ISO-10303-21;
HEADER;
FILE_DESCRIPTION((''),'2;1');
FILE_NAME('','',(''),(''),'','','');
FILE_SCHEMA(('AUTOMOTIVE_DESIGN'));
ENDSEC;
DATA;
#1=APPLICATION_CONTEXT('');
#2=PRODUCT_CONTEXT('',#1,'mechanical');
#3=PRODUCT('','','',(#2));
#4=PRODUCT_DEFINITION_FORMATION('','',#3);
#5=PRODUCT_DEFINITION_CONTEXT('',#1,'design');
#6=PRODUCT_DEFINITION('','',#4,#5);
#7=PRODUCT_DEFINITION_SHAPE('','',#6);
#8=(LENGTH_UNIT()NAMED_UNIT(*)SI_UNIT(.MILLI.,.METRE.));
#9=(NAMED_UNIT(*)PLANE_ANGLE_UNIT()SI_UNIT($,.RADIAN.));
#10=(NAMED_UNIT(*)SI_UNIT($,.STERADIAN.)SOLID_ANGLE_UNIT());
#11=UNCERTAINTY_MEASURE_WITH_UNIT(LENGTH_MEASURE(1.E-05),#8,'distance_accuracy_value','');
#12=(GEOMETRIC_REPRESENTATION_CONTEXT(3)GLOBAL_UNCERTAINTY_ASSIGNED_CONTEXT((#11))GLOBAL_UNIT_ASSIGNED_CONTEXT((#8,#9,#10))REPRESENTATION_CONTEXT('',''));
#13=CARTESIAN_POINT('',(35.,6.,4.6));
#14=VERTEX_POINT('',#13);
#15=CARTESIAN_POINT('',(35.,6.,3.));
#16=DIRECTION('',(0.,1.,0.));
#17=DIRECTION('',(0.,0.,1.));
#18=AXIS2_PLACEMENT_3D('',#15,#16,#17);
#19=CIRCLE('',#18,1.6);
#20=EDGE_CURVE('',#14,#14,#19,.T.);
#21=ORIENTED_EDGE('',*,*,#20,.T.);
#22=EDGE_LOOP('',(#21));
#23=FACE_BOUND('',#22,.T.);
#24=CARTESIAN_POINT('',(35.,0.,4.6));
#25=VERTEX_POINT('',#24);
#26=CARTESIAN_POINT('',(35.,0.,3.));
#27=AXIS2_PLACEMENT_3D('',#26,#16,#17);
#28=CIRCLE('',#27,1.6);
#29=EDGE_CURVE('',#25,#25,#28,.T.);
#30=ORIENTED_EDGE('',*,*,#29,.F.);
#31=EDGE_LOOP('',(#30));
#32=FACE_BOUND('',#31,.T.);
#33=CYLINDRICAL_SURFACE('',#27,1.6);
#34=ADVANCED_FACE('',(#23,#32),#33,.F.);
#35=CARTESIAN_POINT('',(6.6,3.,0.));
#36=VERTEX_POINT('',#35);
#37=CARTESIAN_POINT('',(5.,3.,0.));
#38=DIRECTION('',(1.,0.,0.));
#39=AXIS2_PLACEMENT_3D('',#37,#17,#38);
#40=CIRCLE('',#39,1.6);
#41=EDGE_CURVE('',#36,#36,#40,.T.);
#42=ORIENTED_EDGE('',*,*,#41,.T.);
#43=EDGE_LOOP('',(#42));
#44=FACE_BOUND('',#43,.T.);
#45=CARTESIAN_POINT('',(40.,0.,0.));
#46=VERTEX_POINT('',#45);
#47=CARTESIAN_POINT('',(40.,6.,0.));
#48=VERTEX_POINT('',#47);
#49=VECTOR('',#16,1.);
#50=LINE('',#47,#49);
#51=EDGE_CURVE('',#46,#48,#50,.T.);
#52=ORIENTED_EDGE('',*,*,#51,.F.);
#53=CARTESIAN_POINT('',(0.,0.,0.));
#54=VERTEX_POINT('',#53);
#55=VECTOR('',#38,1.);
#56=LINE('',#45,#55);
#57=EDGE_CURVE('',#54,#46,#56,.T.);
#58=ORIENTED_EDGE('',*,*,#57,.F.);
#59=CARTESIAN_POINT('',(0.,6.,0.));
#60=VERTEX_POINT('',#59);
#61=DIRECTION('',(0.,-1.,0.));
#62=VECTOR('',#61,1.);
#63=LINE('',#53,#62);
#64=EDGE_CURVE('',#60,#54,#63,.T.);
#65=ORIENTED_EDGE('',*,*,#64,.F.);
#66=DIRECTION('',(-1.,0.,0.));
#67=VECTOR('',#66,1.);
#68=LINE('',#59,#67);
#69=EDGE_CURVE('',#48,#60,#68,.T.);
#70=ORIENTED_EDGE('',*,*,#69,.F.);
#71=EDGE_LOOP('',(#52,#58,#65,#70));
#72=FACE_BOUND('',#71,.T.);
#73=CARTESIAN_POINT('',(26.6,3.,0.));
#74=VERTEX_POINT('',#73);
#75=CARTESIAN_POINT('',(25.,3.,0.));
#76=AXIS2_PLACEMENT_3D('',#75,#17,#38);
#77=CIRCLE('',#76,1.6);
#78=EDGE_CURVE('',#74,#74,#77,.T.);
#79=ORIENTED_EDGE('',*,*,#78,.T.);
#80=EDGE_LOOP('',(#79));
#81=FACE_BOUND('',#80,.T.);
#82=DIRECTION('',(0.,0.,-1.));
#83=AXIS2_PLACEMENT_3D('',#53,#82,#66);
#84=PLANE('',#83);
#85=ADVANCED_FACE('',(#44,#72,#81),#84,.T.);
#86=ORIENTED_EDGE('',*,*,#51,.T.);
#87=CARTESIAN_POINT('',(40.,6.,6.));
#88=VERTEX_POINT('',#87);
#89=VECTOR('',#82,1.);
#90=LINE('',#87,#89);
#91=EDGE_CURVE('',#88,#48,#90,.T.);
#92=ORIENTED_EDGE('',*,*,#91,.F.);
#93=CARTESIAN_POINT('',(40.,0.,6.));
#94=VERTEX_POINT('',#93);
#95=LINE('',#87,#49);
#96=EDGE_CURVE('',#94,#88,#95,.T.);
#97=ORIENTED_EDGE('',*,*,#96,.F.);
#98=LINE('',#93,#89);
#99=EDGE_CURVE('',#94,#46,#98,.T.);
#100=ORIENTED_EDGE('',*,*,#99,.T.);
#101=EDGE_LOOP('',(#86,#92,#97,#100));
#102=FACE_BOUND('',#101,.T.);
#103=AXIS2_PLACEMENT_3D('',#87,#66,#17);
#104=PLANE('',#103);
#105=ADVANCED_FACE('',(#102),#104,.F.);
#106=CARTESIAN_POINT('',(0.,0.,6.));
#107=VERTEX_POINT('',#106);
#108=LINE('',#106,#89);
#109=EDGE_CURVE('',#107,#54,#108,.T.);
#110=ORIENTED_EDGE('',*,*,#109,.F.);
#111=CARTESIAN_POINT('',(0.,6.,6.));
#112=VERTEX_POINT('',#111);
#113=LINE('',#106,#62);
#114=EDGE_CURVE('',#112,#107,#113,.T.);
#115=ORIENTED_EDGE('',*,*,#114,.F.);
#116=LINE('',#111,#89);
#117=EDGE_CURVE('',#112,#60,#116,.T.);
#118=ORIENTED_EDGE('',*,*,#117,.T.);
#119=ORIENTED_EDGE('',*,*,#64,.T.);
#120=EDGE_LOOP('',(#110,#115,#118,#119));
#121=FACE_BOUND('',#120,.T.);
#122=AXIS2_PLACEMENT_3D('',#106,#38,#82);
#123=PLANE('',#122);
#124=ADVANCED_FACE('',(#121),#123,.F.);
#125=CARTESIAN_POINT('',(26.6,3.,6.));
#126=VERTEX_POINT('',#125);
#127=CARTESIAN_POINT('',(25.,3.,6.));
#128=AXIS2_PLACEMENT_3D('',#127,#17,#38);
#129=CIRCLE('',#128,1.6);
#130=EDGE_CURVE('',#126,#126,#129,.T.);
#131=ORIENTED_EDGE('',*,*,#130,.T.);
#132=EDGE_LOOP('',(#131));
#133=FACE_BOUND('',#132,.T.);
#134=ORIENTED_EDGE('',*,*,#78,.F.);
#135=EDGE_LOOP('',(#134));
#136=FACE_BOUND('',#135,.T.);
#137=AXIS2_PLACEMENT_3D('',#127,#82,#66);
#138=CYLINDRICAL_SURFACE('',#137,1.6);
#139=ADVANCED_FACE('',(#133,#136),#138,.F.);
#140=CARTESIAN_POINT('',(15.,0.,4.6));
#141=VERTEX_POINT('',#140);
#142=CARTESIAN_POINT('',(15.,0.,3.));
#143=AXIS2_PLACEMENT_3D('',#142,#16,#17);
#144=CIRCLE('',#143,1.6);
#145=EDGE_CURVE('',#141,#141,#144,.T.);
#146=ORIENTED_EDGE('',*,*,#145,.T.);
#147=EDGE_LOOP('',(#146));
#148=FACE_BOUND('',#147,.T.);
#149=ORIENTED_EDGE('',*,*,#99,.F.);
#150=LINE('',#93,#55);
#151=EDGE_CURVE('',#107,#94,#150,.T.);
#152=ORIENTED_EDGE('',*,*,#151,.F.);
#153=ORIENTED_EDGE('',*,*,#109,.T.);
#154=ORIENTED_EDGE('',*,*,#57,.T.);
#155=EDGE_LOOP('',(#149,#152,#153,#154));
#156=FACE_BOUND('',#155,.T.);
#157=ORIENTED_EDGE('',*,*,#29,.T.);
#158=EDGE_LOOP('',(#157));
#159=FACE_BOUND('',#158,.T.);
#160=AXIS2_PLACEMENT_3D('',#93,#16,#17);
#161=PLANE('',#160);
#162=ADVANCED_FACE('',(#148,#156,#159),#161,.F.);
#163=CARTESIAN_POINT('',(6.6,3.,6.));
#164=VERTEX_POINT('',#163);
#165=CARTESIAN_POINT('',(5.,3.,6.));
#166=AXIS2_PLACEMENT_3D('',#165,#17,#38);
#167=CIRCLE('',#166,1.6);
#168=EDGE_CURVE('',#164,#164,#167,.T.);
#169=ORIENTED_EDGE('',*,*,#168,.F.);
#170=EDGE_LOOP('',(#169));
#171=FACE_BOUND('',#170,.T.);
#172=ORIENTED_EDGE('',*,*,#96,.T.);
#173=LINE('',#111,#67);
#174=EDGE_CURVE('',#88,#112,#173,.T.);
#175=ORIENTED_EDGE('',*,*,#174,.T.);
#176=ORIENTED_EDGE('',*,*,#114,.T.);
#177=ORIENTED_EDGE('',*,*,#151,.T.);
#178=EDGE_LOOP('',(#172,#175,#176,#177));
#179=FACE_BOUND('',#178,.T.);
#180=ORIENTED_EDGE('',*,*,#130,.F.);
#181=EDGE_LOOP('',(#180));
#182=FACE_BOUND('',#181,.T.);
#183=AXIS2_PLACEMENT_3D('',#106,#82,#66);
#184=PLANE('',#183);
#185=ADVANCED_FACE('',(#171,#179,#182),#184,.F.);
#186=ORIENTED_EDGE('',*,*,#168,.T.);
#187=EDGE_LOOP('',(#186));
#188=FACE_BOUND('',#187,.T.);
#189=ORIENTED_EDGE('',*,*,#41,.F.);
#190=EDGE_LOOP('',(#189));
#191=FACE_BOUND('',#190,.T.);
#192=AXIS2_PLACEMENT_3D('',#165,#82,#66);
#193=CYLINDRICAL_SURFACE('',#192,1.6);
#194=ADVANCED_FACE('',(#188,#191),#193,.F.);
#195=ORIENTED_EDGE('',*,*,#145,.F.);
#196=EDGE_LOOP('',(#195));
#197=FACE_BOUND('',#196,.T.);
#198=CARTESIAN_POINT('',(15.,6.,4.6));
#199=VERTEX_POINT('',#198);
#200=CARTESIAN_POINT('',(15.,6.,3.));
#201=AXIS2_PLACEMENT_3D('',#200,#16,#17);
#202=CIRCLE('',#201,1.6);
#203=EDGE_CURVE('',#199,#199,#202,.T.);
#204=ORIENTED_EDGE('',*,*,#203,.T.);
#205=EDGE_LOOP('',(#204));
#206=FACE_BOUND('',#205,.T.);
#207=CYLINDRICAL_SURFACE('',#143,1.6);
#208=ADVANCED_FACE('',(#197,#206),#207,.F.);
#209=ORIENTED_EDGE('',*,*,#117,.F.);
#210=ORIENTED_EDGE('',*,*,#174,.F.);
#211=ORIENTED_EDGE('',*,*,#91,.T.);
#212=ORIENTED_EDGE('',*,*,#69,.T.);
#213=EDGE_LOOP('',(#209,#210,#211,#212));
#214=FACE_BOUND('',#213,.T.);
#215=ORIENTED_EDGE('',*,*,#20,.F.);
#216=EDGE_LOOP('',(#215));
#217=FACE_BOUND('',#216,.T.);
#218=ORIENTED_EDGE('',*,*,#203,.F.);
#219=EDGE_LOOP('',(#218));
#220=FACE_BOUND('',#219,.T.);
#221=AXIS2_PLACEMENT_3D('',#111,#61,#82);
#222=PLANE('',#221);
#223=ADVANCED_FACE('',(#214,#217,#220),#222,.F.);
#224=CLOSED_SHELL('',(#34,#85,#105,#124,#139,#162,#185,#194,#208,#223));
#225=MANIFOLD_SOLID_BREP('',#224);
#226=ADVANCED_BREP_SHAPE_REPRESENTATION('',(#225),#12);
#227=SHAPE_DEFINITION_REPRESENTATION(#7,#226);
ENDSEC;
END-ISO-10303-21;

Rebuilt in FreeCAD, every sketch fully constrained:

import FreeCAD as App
import Part
import Sketcher
from FreeCAD import Vector


def add_polygon(sketch, points):
    """Adds a closed chain of lines whose ends are joined by coincident constraints."""
    first, n = sketch.GeometryCount, len(points)
    for a, b in zip(points, points[1:] + points[:1]):
        sketch.addGeometry(Part.LineSegment(App.Vector(*a, 0), App.Vector(*b, 0)), False)
    for i in range(n):
        sketch.addConstraint(Sketcher.Constraint("Coincident", first + i, 2, first + (i + 1) % n, 1))

doc = App.newDocument("Part")
body = doc.addObject("PartDesign::Body", "Body")

sketch1 = doc.addObject("Sketcher::SketchObject", "Sketch")
body.addObject(sketch1)
sketch1.AttachmentSupport = (doc.XY_Plane, [""])
sketch1.MapMode = "FlatFace"
add_polygon(sketch1, [(0, 6), (0, 0), (40, 0), (40, 6)])
sketch1.addGeometry(Part.Circle(Vector(5, 3, 0), Vector(0, 0, 1), 1.6), False)
sketch1.addGeometry(Part.Circle(Vector(25, 3, 0), Vector(0, 0, 1), 1.6), False)
sketch1.addConstraint([
    Sketcher.Constraint("Vertical", 0),
    Sketcher.Constraint("Horizontal", 1),
    Sketcher.Constraint("Vertical", 2),
    Sketcher.Constraint("Horizontal", 3),
    Sketcher.Constraint("Coincident", 0, 2, -1, 1),
    Sketcher.Constraint("Equal", 4, 5),
    Sketcher.Constraint("Horizontal", 4, 3, 5, 3),
    Sketcher.Constraint("Diameter", 4, 3.2),
    Sketcher.Constraint("DistanceX", 1, 1, 1, 2, 40.0),
    Sketcher.Constraint("DistanceY", 0, 2, 0, 1, 6.0),
    Sketcher.Constraint("DistanceX", -1, 1, 4, 3, 5.0),
    Sketcher.Constraint("DistanceY", -1, 1, 4, 3, 3.0),
    Sketcher.Constraint("DistanceX", -1, 1, 5, 3, 25.0),
])
pad1 = doc.addObject("PartDesign::Pad", "Pad")
body.addObject(pad1)
pad1.Profile = sketch1
pad1.Length = 6

sketch2 = doc.addObject("Sketcher::SketchObject", "Sketch001")
body.addObject(sketch2)
sketch2.AttachmentSupport = (doc.XZ_Plane, [""])
sketch2.MapMode = "FlatFace"
sketch2.AttachmentOffset = App.Placement(Vector(0, 0, -6), App.Rotation())
sketch2.addGeometry([
    Part.Circle(Vector(35, 3, 0), Vector(0, 0, 1), 1.6),
    Part.Circle(Vector(15, 3, 0), Vector(0, 0, 1), 1.6),
], False)
sketch2.addConstraint([
    Sketcher.Constraint("Equal", 0, 1),
    Sketcher.Constraint("Horizontal", 0, 3, 1, 3),
    Sketcher.Constraint("Diameter", 0, 3.2),
    Sketcher.Constraint("DistanceX", -1, 1, 0, 3, 35.0),
    Sketcher.Constraint("DistanceY", -1, 1, 0, 3, 3.0),
    Sketcher.Constraint("DistanceX", -1, 1, 1, 3, 15.0),
])
pocket1 = doc.addObject("PartDesign::Pocket", "Pocket")
body.addObject(pocket1)
pocket1.Profile = sketch2
pocket1.Length = 6
pocket1.Reversed = True

doc.recompute()
